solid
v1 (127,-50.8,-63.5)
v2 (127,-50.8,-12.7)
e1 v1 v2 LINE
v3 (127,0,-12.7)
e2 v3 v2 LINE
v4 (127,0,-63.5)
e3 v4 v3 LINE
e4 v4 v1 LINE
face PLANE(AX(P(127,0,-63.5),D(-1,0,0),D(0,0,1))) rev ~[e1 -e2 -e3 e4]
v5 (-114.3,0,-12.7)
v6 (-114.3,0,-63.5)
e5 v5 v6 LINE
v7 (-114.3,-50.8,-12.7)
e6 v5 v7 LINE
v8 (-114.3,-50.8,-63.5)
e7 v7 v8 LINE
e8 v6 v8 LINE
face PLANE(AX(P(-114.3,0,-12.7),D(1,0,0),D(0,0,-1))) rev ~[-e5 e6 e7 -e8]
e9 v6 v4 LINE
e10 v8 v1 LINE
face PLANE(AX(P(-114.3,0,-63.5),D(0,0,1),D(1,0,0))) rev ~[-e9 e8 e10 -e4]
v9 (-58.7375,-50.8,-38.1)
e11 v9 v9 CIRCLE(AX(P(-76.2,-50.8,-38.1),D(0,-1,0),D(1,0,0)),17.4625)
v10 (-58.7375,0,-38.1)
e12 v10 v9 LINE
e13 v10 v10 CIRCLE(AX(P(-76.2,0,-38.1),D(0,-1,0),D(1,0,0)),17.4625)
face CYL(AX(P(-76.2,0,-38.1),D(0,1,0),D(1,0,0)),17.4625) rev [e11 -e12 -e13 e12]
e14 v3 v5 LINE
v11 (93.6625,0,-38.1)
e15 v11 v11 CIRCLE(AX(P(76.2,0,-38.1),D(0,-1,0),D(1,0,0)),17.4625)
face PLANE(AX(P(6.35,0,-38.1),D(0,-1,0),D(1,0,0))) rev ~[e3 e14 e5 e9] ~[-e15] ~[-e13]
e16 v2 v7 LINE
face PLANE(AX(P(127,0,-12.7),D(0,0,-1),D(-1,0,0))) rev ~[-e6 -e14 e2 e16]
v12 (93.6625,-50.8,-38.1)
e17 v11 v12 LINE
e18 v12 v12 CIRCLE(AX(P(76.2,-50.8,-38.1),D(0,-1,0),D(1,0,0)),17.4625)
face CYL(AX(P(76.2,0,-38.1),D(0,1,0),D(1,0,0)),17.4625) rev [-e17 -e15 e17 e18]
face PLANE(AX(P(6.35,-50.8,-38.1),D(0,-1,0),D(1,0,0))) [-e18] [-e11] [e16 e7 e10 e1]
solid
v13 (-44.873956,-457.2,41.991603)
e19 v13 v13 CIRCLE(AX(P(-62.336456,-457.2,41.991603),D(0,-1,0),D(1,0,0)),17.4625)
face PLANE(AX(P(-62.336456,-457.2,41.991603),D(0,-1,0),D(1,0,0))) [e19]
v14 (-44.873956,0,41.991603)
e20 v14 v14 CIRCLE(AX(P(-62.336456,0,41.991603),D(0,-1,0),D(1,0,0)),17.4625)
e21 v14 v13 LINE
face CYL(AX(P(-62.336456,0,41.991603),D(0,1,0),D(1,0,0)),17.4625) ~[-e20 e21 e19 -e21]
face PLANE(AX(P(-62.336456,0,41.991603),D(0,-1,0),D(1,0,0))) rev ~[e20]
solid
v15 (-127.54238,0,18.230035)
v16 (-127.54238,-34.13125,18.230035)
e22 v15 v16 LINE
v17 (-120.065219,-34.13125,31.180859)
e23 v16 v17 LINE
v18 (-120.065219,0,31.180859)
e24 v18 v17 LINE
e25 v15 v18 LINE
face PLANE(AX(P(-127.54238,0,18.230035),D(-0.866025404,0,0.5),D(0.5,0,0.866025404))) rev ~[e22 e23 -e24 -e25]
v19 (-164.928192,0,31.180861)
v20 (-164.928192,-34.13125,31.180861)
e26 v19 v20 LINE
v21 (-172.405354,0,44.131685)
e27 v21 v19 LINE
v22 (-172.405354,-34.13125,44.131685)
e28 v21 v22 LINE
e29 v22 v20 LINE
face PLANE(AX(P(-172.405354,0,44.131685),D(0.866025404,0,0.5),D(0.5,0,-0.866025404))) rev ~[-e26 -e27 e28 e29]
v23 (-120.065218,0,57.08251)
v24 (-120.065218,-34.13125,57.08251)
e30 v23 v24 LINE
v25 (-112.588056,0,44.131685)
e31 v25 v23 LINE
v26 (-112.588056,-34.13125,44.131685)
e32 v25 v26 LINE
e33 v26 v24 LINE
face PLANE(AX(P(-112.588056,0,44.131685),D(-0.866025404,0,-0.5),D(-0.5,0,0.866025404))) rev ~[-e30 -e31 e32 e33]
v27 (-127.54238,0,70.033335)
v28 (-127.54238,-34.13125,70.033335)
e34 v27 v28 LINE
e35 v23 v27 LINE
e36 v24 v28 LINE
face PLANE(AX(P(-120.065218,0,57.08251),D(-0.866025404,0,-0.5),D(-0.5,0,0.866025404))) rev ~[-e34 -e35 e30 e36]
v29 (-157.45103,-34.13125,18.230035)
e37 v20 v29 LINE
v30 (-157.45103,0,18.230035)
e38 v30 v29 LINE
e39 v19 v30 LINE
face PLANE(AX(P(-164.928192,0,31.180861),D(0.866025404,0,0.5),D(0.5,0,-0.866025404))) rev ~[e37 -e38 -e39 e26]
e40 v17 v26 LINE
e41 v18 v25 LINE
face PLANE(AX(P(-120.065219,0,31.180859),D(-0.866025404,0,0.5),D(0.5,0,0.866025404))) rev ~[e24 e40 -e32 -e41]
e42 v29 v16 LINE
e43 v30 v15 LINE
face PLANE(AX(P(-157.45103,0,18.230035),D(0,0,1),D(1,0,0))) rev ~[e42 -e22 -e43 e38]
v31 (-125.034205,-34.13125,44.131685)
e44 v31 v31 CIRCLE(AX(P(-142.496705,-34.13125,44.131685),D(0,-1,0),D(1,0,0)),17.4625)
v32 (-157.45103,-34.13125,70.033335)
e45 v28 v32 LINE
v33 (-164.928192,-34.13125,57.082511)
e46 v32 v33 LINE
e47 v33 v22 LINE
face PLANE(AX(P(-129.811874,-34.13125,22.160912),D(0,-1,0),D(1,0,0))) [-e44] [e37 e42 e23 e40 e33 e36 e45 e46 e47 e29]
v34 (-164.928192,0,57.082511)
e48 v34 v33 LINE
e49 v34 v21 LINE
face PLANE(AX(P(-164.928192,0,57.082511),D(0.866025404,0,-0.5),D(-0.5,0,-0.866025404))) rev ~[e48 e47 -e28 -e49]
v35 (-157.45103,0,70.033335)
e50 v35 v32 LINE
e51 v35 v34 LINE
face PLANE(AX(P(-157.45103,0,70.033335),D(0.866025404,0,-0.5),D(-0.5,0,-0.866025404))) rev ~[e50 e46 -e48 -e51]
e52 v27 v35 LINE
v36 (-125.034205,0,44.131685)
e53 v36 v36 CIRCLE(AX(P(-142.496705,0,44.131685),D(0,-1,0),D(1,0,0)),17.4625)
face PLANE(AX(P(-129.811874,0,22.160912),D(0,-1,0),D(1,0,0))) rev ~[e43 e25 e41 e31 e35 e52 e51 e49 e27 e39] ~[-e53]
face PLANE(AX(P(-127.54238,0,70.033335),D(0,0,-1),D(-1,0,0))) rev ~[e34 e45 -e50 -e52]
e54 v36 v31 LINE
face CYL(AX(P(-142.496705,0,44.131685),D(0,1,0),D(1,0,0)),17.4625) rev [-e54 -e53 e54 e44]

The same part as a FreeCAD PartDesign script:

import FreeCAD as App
import Part
import Sketcher
from FreeCAD import Vector
Q = App.Units.Quantity


def add_polygon(sketch, points):
    """Adds a closed chain of lines whose ends are joined by coincident constraints."""
    first, n = sketch.GeometryCount, len(points)
    for a, b in zip(points, points[1:] + points[:1]):
        sketch.addGeometry(Part.LineSegment(App.Vector(*a, 0), App.Vector(*b, 0)), False)
    for i in range(n):
        sketch.addConstraint(Sketcher.Constraint("Coincident", first + i, 2, first + (i + 1) % n, 1))

doc = App.newDocument("Part")
params = doc.addObject("Spreadsheet::Sheet", "Params")
for row, (alias, value) in enumerate([
    ("sketch1_height", "2 in"),
    ("sketch1_diameter", "1.375 in"),
    ("sketch1_width", "9.5 in"),
    ("pad1_length", "2 in"),
    ("sketch2_diameter", "1.375 in"),
    ("pad2_length", "1.34375 in"),
    ("sketch3_diameter", "1.375 in"),
    ("pad3_length", "18 in"),
], start=1):
    params.set(f"A{row}", alias)
    params.set(f"B{row}", "=" + value)
    params.setAlias(f"B{row}", alias)

body = doc.addObject("PartDesign::Body", "Body")

# Sketch on XZ plane
sketch1 = doc.addObject("Sketcher::SketchObject", "Sketch")
body.addObject(sketch1)
sketch1.AttachmentSupport = (doc.XZ_Plane, [""])
sketch1.MapMode = "FlatFace"
add_polygon(sketch1, [(127, -13), (-114, -13), (-114, -64), (127, -64)])  # lines 0-3
sketch1.addGeometry(Part.Circle(Vector(-76, -38, 0), Vector(0, 0, 1), 17), False)  # 4
sketch1.addGeometry(Part.Circle(Vector(76, -38, 0), Vector(0, 0, 1), 17), False)  # 5
sketch1.addConstraint([
    Sketcher.Constraint("Horizontal", 0),
    Sketcher.Constraint("Vertical", 1),
    Sketcher.Constraint("Horizontal", 2),
    Sketcher.Constraint("Vertical", 3),
    Sketcher.Constraint("Equal", 4, 5),
    Sketcher.Constraint("Symmetric", 4, 3, 5, 3, -2),
    Sketcher.Constraint("DistanceY", 1, 2, 1, 1, Q("2 in")),
    Sketcher.Constraint("Diameter", 4, Q("1.375 in")),
    Sketcher.Constraint("DistanceX", 0, 2, 0, 1, Q("9.5 in")),
    Sketcher.Constraint("DistanceX", 4, 3, -1, 1, Q("3 in")),
    Sketcher.Constraint("DistanceX", -1, 1, 2, 2, Q("5 in")),
    Sketcher.Constraint("DistanceY", 4, 3, 0, 2, Q("1 in")),
    Sketcher.Constraint("DistanceY", 4, 3, -1, 1, Q("1.5 in")),
])
sketch1.setExpression("Constraints[10]", "Params.sketch1_height")
sketch1.setExpression("Constraints[11]", "Params.sketch1_diameter")
sketch1.setExpression("Constraints[12]", "Params.sketch1_width")
pad1 = doc.addObject("PartDesign::Pad", "Pad")
body.addObject(pad1)
pad1.Profile = sketch1
pad1.setExpression("Length", "Params.pad1_length")
body2 = doc.addObject("PartDesign::Body", "Body001")

# Sketch on XZ plane
sketch2 = doc.addObject("Sketcher::SketchObject", "Sketch001")
body2.addObject(sketch2)
sketch2.AttachmentSupport = (doc.getObject("XZ_Plane001"), [""])
sketch2.MapMode = "FlatFace"
add_polygon(sketch2, [(-128, 18), (-120, 31), (-113, 44), (-120, 57), (-128, 70), (-157, 70), (-165, 57), (-172, 44), (-165, 31), (-157, 18)])  # lines 0-9
sketch2.addGeometry(Part.Circle(Vector(-142, 44, 0), Vector(0, 0, 1), 17), False)  # 10
sketch2.addConstraint([
    Sketcher.Constraint("Horizontal", 4),
    Sketcher.Constraint("Horizontal", 9),
    Sketcher.Constraint("Parallel", 0, 1),
    Sketcher.Constraint("Parallel", 2, 3),
    Sketcher.Constraint("Parallel", 1, 5),
    Sketcher.Constraint("Parallel", 5, 6),
    Sketcher.Constraint("Parallel", 3, 7),
    Sketcher.Constraint("Parallel", 7, 8),
    Sketcher.Constraint("Horizontal", 10, 3, 1, 2),
    Sketcher.Constraint("Horizontal", 2, 2, 5, 2),
    Sketcher.Constraint("Horizontal", 1, 2, 6, 2),
    Sketcher.Constraint("Horizontal", 0, 2, 7, 2),
    Sketcher.Constraint("Vertical", 0, 2, 2, 2),
    Sketcher.Constraint("Vertical", 5, 2, 7, 2),
    Sketcher.Constraint("Vertical", 4, 2, 8, 2),
    Sketcher.Constraint("Equal", 0, 1),
    Sketcher.Constraint("Diameter", 10, Q("1.375 in")),
    Sketcher.Constraint("Angle", 0, Q("60 deg")),
    Sketcher.Constraint("DistanceX", 4, 2, 4, 1, Q("29.908649 mm")),
    Sketcher.Constraint("DistanceX", 0, 2, -1, 1, Q("120.065219 mm")),
    Sketcher.Constraint("DistanceY", -1, 1, 0, 2, Q("31.180859 mm")),
    Sketcher.Constraint("DistanceY", -1, 1, 2, 2, Q("57.08251 mm")),
    Sketcher.Constraint("DistanceX", 10, 3, 1, 2, Q("29.908649 mm")),
])
sketch2.setExpression("Constraints[26]", "Params.sketch2_diameter")
pad2 = doc.addObject("PartDesign::Pad", "Pad001")
body2.addObject(pad2)
pad2.Profile = sketch2
pad2.setExpression("Length", "Params.pad2_length")
body3 = doc.addObject("PartDesign::Body", "Body002")

# Sketch on XZ plane
sketch3 = doc.addObject("Sketcher::SketchObject", "Sketch002")
body3.addObject(sketch3)
sketch3.AttachmentSupport = (doc.getObject("XZ_Plane002"), [""])
sketch3.MapMode = "FlatFace"
sketch3.addGeometry(Part.Circle(Vector(-62, 42, 0), Vector(0, 0, 1), 17), False)
sketch3.addConstraint([
    Sketcher.Constraint("Diameter", 0, Q("1.375 in")),
    Sketcher.Constraint("DistanceX", 0, 3, -1, 1, Q("62.336456 mm")),
    Sketcher.Constraint("DistanceY", -1, 1, 0, 3, Q("41.991603 mm")),
])
sketch3.setExpression("Constraints[0]", "Params.sketch3_diameter")
pad3 = doc.addObject("PartDesign::Pad", "Pad002")
body3.addObject(pad3)
pad3.Profile = sketch3
pad3.setExpression("Length", "Params.pad3_length")

doc.recompute()
